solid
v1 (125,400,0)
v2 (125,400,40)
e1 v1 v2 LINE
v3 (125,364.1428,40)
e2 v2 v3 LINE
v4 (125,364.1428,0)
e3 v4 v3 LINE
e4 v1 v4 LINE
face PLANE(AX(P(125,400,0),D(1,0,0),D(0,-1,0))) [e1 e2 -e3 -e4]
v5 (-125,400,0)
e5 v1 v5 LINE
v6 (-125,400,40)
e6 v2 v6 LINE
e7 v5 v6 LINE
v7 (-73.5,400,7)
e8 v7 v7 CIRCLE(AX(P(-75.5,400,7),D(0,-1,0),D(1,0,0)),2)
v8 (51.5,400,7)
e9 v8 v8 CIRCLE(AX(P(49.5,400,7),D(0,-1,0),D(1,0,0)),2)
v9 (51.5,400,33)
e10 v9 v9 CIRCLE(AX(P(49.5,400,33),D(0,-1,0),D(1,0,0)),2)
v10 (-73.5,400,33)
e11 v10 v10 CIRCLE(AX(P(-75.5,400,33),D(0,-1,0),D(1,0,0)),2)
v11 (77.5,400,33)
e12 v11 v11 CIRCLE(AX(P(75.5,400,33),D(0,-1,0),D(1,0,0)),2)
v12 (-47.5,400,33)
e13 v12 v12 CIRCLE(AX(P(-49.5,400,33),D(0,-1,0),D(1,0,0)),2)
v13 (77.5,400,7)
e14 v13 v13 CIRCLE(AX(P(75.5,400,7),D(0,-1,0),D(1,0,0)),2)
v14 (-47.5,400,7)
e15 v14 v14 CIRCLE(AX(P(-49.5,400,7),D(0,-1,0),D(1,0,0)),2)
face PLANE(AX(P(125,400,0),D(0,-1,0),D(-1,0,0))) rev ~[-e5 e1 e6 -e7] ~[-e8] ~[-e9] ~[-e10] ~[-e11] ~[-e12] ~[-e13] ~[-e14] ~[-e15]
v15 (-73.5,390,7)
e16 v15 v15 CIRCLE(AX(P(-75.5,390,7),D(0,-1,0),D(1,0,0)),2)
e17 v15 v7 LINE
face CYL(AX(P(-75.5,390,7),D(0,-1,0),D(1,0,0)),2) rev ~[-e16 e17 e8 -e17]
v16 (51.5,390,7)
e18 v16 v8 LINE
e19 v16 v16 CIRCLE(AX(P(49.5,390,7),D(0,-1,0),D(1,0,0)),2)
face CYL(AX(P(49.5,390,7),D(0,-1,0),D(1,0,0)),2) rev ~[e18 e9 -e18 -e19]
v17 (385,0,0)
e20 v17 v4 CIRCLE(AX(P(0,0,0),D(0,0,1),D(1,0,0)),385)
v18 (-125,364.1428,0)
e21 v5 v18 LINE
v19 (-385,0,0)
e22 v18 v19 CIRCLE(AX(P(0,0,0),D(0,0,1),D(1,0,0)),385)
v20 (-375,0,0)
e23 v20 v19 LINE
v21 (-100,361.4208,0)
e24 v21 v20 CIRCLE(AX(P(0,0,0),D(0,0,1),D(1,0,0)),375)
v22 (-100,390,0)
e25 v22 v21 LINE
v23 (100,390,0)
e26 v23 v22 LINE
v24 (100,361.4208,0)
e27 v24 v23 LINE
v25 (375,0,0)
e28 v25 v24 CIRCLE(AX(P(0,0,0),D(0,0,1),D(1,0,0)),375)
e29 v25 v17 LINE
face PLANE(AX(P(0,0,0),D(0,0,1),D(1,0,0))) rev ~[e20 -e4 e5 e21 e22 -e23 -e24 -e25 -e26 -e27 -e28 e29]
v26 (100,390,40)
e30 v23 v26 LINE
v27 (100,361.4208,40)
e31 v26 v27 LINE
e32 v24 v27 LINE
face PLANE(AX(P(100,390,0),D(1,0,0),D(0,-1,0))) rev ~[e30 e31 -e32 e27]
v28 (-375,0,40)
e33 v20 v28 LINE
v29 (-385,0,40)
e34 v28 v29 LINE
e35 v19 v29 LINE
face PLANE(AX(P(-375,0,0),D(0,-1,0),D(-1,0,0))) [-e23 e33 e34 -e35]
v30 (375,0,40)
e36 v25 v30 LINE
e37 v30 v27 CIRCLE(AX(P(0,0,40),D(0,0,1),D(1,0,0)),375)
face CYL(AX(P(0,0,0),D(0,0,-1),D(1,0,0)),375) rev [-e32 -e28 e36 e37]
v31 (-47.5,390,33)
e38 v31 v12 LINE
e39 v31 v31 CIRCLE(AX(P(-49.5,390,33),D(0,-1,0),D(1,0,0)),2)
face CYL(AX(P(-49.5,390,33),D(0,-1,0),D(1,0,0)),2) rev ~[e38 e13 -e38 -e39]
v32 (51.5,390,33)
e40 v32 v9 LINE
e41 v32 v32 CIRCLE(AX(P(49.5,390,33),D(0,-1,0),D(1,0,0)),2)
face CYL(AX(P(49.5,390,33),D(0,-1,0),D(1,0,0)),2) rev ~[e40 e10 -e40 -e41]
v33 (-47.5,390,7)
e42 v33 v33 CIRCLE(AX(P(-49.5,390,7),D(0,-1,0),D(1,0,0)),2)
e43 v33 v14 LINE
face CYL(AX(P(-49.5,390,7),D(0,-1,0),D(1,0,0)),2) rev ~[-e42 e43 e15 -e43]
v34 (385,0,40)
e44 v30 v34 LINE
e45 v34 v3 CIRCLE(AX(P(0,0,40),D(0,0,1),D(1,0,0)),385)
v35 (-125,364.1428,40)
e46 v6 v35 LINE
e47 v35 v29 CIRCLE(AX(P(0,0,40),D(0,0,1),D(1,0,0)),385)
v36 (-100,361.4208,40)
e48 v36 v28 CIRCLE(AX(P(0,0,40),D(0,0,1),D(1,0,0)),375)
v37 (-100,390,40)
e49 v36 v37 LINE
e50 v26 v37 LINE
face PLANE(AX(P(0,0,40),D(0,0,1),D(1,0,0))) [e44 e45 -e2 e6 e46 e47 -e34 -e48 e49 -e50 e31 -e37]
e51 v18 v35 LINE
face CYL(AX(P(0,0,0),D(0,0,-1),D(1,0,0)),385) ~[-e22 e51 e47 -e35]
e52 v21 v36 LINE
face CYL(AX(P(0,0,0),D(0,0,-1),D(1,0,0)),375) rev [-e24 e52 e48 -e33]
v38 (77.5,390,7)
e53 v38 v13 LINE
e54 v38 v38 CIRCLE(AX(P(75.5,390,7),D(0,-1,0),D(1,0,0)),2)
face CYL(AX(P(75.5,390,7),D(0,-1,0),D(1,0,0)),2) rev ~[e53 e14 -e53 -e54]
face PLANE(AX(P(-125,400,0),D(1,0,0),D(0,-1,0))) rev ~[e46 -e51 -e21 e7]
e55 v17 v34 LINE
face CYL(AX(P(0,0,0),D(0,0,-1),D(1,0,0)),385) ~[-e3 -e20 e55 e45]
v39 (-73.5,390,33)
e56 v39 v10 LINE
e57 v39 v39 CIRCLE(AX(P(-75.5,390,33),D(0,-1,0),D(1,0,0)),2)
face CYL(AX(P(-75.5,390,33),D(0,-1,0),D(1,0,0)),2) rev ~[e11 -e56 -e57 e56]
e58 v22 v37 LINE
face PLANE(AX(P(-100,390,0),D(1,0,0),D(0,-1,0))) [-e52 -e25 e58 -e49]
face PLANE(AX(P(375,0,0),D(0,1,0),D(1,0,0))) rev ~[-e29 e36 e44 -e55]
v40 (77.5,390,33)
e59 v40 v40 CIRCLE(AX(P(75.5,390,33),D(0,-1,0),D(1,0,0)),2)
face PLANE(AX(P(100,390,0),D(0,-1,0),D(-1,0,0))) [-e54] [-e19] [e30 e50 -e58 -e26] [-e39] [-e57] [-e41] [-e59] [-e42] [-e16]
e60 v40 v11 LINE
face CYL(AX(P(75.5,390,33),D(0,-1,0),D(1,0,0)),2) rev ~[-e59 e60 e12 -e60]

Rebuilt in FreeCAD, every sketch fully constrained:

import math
import FreeCAD as App
import Part
import Sketcher
Q = App.Units.Quantity

doc = App.newDocument("Part")
body = doc.addObject("PartDesign::Body", "Body")

# Sketch on XY plane
sketch1 = doc.addObject("Sketcher::SketchObject", "Sketch")
body.addObject(sketch1)
sketch1.AttachmentSupport = (doc.XY_Plane, [""])
sketch1.MapMode = "FlatFace"
sketch1.addGeometry([
    Part.LineSegment(App.Vector(125, 364, 0), App.Vector(125, 400, 0)),  # 0
    Part.LineSegment(App.Vector(125, 400, 0), App.Vector(-125, 400, 0)),  # 1
    Part.LineSegment(App.Vector(-125, 400, 0), App.Vector(-125, 364, 0)),  # 2
    Part.ArcOfCircle(Part.Circle(App.Vector(0, 0, 0), App.Vector(0, 0, 1), 385), math.radians(109), math.radians(180)),  # 3
    Part.LineSegment(App.Vector(-385, 0, 0), App.Vector(-375, 0, 0)),  # 4
    Part.ArcOfCircle(Part.Circle(App.Vector(0, 0, 0), App.Vector(0, 0, 1), 375), math.radians(105), math.radians(180)),  # 5
    Part.LineSegment(App.Vector(-100, 361, 0), App.Vector(-100, 390, 0)),  # 6
    Part.LineSegment(App.Vector(-100, 390, 0), App.Vector(100, 390, 0)),  # 7
    Part.LineSegment(App.Vector(100, 390, 0), App.Vector(100, 361, 0)),  # 8
    Part.ArcOfCircle(Part.Circle(App.Vector(0, 0, 0), App.Vector(0, 0, 1), 375), math.radians(0), math.radians(75)),  # 9
    Part.LineSegment(App.Vector(375, 0, 0), App.Vector(385, 0, 0)),  # 10
    Part.ArcOfCircle(Part.Circle(App.Vector(0, 0, 0), App.Vector(0, 0, 1), 385), math.radians(0), math.radians(71)),  # 11
], False)
sketch1.addConstraint([
    Sketcher.Constraint("Coincident", 0, 2, 1, 1),
    Sketcher.Constraint("Coincident", 1, 2, 2, 1),
    Sketcher.Constraint("Coincident", 2, 2, 3, 1),
    Sketcher.Constraint("Coincident", 3, 2, 4, 1),
    Sketcher.Constraint("Coincident", 4, 2, 5, 2),
    Sketcher.Constraint("Coincident", 5, 1, 6, 1),
    Sketcher.Constraint("Coincident", 6, 2, 7, 1),
    Sketcher.Constraint("Coincident", 7, 2, 8, 1),
    Sketcher.Constraint("Coincident", 8, 2, 9, 2),
    Sketcher.Constraint("Coincident", 9, 1, 10, 1),
    Sketcher.Constraint("Coincident", 10, 2, 11, 1),
    Sketcher.Constraint("Coincident", 11, 2, 0, 1),
    Sketcher.Constraint("Vertical", 0),
    Sketcher.Constraint("Horizontal", 1),
    Sketcher.Constraint("Vertical", 2),
    Sketcher.Constraint("Horizontal", 4),
    Sketcher.Constraint("Vertical", 6),
    Sketcher.Constraint("Horizontal", 7),
    Sketcher.Constraint("Vertical", 8),
    Sketcher.Constraint("Horizontal", 10),
    Sketcher.Constraint("Coincident", 3, 3, -1, 1),
    Sketcher.Constraint("Coincident", 5, 3, -1, 1),
    Sketcher.Constraint("Coincident", 9, 3, -1, 1),
    Sketcher.Constraint("Coincident", 11, 3, -1, 1),
    Sketcher.Constraint("Equal", 5, 9),
    Sketcher.Constraint("Equal", 3, 11),
    Sketcher.Constraint("PointOnObject", 4, 2, -1),
    Sketcher.Constraint("PointOnObject", 10, 2, -1),
    Sketcher.Constraint("Horizontal", 5, 1, 8, 2),
    Sketcher.Constraint("Horizontal", 2, 2, 11, 2),
    Sketcher.Constraint("DistanceX", 1, 2, 1, 1, Q("250 mm")),
    Sketcher.Constraint("DistanceX", 4, 1, 4, 2, Q("10 mm")),
    Sketcher.Constraint("DistanceX", 7, 1, 7, 2, Q("200 mm")),
    Sketcher.Constraint("DistanceY", -1, 1, 0, 2, Q("400 mm")),
    Sketcher.Constraint("Radius", 3, Q("385 mm")),
    Sketcher.Constraint("DistanceY", 6, 2, 1, 2, Q("10 mm")),
])
pad1 = doc.addObject("PartDesign::Pad", "Pad")
body.addObject(pad1)
pad1.Profile = sketch1
pad1.Length = 40

# Sketch on XZ plane
sketch2 = doc.addObject("Sketcher::SketchObject", "Sketch001")
body.addObject(sketch2)
sketch2.AttachmentSupport = (doc.XZ_Plane, [""])
sketch2.MapMode = "FlatFace"
sketch2.AttachmentOffset = App.Placement(App.Vector(0, 0, -390), App.Rotation())
sketch2.addGeometry([
    Part.Circle(App.Vector(75.5, 33, 0), App.Vector(0, 0, 1), 2),  # 0
    Part.Circle(App.Vector(75.5, 7, 0), App.Vector(0, 0, 1), 2),  # 1
    Part.Circle(App.Vector(49.5, 7, 0), App.Vector(0, 0, 1), 2),  # 2
    Part.Circle(App.Vector(49.5, 33, 0), App.Vector(0, 0, 1), 2),  # 3
    Part.Circle(App.Vector(-49.5, 33, 0), App.Vector(0, 0, 1), 2),  # 4
    Part.Circle(App.Vector(-49.5, 7, 0), App.Vector(0, 0, 1), 2),  # 5
    Part.Circle(App.Vector(-75.5, 7, 0), App.Vector(0, 0, 1), 2),  # 6
    Part.Circle(App.Vector(-75.5, 33, 0), App.Vector(0, 0, 1), 2),  # 7
], False)
sketch2.addConstraint([
    Sketcher.Constraint("Equal", 0, 1),
    Sketcher.Constraint("Equal", 1, 2),
    Sketcher.Constraint("Equal", 2, 3),
    Sketcher.Constraint("Equal", 3, 4),
    Sketcher.Constraint("Equal", 4, 5),
    Sketcher.Constraint("Equal", 5, 6),
    Sketcher.Constraint("Equal", 6, 7),
    Sketcher.Constraint("Symmetric", 3, 3, 4, 3, -2),
    Sketcher.Constraint("Symmetric", 2, 3, 5, 3, -2),
    Sketcher.Constraint("Symmetric", 1, 3, 6, 3, -2),
    Sketcher.Constraint("Symmetric", 0, 3, 7, 3, -2),
    Sketcher.Constraint("Horizontal", 1, 3, 2, 3),
    Sketcher.Constraint("Horizontal", 0, 3, 3, 3),
    Sketcher.Constraint("Vertical", 0, 3, 1, 3),
    Sketcher.Constraint("Vertical", 2, 3, 3, 3),
    Sketcher.Constraint("Diameter", 0, Q("4 mm")),
    Sketcher.Constraint("DistanceY", 1, 3, 0, 3, Q("26 mm")),
    Sketcher.Constraint("DistanceX", 2, 3, 1, 3, Q("26 mm")),
    Sketcher.Constraint("DistanceX", 4, 3, 3, 3, Q("99 mm")),
    Sketcher.Constraint("DistanceY", -1, 1, 0, 3, Q("33 mm")),
])
pocket1 = doc.addObject("PartDesign::Pocket", "Pocket")
body.addObject(pocket1)
pocket1.Profile = sketch2
pocket1.Length = 10

doc.recompute()
